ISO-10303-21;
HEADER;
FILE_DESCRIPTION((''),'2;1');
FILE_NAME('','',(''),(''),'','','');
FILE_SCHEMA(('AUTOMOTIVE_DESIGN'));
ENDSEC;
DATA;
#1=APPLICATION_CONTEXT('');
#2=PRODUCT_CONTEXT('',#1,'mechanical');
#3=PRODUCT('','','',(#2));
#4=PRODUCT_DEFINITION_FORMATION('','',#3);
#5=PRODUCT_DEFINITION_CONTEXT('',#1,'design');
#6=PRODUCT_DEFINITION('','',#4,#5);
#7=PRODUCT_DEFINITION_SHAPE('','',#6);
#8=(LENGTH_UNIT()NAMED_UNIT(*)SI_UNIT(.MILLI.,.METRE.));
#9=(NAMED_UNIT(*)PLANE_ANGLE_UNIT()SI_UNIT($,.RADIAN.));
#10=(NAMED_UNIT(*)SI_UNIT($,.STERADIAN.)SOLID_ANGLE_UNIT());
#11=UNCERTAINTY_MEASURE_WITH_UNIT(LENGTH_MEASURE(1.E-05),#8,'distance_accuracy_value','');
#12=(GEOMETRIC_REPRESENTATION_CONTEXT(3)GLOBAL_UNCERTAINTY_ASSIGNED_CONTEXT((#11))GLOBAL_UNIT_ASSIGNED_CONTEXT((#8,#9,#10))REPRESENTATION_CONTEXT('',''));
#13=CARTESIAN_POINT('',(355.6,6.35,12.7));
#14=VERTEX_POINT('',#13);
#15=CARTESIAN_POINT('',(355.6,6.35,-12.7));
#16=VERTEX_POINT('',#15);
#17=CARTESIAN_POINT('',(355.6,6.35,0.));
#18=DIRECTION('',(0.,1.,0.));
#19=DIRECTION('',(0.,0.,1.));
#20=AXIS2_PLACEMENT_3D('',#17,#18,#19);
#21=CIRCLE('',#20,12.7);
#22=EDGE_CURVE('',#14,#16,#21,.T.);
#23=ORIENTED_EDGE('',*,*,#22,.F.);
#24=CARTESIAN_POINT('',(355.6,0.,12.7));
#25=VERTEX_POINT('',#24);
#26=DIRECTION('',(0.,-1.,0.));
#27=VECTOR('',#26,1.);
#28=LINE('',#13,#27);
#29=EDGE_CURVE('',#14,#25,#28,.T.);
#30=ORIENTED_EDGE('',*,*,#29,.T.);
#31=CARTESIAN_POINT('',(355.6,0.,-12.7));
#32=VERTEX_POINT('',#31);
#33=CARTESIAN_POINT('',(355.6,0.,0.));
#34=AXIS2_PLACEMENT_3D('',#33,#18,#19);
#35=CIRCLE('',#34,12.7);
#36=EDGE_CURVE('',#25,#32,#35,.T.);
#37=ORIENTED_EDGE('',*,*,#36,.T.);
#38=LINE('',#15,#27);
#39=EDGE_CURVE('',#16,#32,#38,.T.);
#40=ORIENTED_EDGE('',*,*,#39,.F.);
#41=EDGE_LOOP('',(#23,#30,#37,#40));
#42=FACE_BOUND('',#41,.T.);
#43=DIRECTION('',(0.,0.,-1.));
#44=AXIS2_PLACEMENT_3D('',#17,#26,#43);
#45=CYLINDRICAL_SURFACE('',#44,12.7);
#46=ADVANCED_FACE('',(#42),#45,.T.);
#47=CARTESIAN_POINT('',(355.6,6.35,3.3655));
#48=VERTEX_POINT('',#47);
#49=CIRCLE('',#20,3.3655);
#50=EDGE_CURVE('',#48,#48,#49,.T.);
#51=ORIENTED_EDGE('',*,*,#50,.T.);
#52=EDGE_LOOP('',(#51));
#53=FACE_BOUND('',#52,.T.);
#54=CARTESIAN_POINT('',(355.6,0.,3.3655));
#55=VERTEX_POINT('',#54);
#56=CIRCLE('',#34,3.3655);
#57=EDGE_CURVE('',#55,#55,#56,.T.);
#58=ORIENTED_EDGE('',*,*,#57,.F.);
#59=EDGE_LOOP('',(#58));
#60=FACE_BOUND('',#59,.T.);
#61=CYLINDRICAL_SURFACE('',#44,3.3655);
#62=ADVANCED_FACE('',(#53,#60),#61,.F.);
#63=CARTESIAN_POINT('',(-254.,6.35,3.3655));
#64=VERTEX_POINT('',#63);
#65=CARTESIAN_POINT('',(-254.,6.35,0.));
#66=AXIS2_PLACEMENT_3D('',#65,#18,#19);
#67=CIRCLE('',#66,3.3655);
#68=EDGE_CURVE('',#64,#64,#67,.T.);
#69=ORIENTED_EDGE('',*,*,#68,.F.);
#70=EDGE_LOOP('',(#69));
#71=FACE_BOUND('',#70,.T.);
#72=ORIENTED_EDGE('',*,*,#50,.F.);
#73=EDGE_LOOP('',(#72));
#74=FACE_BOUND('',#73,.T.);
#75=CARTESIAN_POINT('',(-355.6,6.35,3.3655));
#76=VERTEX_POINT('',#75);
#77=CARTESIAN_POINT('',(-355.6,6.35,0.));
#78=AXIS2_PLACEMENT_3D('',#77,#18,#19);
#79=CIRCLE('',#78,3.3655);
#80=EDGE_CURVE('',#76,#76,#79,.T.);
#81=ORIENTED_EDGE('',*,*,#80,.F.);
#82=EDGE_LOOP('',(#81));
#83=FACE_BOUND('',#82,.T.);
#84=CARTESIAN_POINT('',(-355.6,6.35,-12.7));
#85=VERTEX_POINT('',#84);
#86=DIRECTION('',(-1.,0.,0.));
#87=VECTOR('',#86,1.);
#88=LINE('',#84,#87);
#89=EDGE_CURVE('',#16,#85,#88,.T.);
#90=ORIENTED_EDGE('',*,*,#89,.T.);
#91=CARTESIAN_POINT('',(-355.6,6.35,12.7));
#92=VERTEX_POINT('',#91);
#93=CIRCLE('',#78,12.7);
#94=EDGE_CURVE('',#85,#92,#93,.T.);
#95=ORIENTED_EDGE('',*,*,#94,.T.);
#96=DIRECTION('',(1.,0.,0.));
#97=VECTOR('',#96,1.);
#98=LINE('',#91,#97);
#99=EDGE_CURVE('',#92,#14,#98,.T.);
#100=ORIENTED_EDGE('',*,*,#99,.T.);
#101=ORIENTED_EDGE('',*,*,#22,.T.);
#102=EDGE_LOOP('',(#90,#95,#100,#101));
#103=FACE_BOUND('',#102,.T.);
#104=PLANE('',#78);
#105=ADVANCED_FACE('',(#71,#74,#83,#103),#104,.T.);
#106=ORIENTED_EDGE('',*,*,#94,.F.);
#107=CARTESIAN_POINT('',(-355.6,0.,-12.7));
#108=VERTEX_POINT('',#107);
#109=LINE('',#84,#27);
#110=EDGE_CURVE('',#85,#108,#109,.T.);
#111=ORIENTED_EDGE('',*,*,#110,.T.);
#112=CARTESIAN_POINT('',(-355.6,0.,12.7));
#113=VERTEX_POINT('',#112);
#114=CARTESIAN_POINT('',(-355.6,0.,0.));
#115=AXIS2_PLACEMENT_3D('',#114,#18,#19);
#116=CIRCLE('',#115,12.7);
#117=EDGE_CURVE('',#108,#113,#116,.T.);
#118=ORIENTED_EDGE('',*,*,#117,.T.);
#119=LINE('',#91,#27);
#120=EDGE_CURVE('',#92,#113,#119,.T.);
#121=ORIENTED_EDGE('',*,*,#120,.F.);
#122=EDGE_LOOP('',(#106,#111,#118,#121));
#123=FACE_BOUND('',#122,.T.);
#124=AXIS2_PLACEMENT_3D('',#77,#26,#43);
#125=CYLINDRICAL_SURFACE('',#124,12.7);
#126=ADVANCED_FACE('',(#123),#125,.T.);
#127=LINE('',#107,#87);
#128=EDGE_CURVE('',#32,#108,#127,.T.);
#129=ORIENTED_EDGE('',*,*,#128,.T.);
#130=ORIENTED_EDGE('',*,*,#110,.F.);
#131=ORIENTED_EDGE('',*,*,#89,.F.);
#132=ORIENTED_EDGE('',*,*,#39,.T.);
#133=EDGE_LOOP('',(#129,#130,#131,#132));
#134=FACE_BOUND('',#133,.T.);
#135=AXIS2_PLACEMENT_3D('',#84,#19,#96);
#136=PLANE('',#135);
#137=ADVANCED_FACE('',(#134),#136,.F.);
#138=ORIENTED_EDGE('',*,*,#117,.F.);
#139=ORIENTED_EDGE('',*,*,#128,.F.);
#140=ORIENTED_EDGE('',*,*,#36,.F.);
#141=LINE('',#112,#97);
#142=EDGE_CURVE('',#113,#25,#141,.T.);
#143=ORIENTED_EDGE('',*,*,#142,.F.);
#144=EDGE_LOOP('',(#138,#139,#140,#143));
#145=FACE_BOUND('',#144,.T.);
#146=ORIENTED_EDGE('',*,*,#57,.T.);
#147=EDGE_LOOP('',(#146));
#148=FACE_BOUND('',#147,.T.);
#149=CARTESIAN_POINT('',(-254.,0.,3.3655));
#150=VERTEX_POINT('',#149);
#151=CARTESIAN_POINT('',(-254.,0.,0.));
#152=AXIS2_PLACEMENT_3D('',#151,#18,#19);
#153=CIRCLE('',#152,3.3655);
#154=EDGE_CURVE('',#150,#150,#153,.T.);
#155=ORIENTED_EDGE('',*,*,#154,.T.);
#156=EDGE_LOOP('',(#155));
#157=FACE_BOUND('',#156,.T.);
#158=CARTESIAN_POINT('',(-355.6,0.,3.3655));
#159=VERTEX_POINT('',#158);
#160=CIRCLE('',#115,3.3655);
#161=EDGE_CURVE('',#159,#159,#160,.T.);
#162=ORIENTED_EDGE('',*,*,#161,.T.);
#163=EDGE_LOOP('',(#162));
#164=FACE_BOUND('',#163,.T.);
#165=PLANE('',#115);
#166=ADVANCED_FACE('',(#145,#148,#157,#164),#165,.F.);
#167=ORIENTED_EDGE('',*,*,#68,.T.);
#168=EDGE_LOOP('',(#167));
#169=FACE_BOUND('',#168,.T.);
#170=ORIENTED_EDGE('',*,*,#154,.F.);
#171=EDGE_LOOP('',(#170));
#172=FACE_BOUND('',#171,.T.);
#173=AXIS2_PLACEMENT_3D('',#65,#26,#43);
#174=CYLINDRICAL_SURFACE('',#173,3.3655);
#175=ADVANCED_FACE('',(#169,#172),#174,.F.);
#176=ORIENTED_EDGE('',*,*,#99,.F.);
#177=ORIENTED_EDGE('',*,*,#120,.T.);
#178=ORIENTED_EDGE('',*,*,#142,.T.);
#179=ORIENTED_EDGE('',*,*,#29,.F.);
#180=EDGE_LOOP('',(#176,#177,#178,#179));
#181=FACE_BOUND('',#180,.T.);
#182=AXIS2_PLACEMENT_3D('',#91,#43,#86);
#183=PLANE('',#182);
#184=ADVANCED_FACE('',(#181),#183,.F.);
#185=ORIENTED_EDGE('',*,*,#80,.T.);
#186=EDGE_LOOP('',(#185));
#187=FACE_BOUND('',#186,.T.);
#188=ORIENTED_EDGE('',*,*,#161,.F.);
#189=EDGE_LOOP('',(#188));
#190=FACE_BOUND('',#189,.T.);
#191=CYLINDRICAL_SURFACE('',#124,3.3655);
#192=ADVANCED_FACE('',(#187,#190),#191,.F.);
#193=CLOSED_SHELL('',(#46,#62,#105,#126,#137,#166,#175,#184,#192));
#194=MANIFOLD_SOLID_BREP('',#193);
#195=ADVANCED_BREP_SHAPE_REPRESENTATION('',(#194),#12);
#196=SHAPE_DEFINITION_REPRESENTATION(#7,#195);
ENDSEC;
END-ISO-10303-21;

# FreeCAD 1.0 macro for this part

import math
import FreeCAD as App
import Part
import Sketcher

V = App.Vector
Q = App.Units.Quantity

doc = App.newDocument("Part")
body = doc.addObject("PartDesign::Body", "Body")

# Sketch on XZ plane
sketch1 = body.newObject("Sketcher::SketchObject", "Sketch")
sketch1.AttachmentSupport = (doc.getObject("XZ_Plane"), [""])
sketch1.MapMode = "FlatFace"
sketch1.addGeometry(Part.LineSegment(V(355.6, -12.7, 0), V(-355.6, -12.7, 0)), False)
sketch1.addGeometry(Part.ArcOfCircle(Part.Circle(V(-355.6, 0, 0), V(0, 0, 1), 12.7), math.radians(90), math.radians(270)), False)
sketch1.addGeometry(Part.LineSegment(V(-355.6, 12.7, 0), V(355.6, 12.7, 0)), False)
sketch1.addGeometry(Part.ArcOfCircle(Part.Circle(V(355.6, 0, 0), V(0, 0, 1), 12.7), math.radians(-90), math.radians(90)), False)
sketch1.addGeometry(Part.Circle(V(355.6, 0, 0), V(0, 0, 1), 3.4), False)
sketch1.addGeometry(Part.Circle(V(-254, 0, 0), V(0, 0, 1), 3.4), False)
sketch1.addGeometry(Part.Circle(V(-355.6, 0, 0), V(0, 0, 1), 3.4), False)
sketch1.addConstraint(Sketcher.Constraint("Tangent", 0, 2, 1, 2))
sketch1.addConstraint(Sketcher.Constraint("Tangent", 1, 1, 2, 1))
sketch1.addConstraint(Sketcher.Constraint("Tangent", 2, 2, 3, 2))
sketch1.addConstraint(Sketcher.Constraint("Tangent", 3, 1, 0, 1))
sketch1.addConstraint(Sketcher.Constraint("Horizontal", 0))
sketch1.addConstraint(Sketcher.Constraint("Horizontal", 2))
sketch1.addConstraint(Sketcher.Constraint("Coincident", 4, 3, 3, 3))
sketch1.addConstraint(Sketcher.Constraint("Coincident", 6, 3, 1, 3))
sketch1.addConstraint(Sketcher.Constraint("Equal", 4, 5))
sketch1.addConstraint(Sketcher.Constraint("Equal", 5, 6))
sketch1.addConstraint(Sketcher.Constraint("Symmetric", 1, 3, 3, 3, -1, 1))
sketch1.addConstraint(Sketcher.Constraint("PointOnObject", 5, 3, -1))
sketch1.addConstraint(Sketcher.Constraint("Radius", 1, Q("0.5 in")))
sketch1.addConstraint(Sketcher.Constraint("DistanceX", 0, 2, 0, 1, Q("28 in")))
sketch1.addConstraint(Sketcher.Constraint("Diameter", 4, Q("0.265 in")))
sketch1.addConstraint(Sketcher.Constraint("DistanceX", 5, 3, -1, 1, Q("10 in")))
pad1 = body.newObject("PartDesign::Pad", "Pad")
pad1.Profile = sketch1
pad1.Length = Q("0.25 in")
pad1.Reversed = True

doc.recompute()
